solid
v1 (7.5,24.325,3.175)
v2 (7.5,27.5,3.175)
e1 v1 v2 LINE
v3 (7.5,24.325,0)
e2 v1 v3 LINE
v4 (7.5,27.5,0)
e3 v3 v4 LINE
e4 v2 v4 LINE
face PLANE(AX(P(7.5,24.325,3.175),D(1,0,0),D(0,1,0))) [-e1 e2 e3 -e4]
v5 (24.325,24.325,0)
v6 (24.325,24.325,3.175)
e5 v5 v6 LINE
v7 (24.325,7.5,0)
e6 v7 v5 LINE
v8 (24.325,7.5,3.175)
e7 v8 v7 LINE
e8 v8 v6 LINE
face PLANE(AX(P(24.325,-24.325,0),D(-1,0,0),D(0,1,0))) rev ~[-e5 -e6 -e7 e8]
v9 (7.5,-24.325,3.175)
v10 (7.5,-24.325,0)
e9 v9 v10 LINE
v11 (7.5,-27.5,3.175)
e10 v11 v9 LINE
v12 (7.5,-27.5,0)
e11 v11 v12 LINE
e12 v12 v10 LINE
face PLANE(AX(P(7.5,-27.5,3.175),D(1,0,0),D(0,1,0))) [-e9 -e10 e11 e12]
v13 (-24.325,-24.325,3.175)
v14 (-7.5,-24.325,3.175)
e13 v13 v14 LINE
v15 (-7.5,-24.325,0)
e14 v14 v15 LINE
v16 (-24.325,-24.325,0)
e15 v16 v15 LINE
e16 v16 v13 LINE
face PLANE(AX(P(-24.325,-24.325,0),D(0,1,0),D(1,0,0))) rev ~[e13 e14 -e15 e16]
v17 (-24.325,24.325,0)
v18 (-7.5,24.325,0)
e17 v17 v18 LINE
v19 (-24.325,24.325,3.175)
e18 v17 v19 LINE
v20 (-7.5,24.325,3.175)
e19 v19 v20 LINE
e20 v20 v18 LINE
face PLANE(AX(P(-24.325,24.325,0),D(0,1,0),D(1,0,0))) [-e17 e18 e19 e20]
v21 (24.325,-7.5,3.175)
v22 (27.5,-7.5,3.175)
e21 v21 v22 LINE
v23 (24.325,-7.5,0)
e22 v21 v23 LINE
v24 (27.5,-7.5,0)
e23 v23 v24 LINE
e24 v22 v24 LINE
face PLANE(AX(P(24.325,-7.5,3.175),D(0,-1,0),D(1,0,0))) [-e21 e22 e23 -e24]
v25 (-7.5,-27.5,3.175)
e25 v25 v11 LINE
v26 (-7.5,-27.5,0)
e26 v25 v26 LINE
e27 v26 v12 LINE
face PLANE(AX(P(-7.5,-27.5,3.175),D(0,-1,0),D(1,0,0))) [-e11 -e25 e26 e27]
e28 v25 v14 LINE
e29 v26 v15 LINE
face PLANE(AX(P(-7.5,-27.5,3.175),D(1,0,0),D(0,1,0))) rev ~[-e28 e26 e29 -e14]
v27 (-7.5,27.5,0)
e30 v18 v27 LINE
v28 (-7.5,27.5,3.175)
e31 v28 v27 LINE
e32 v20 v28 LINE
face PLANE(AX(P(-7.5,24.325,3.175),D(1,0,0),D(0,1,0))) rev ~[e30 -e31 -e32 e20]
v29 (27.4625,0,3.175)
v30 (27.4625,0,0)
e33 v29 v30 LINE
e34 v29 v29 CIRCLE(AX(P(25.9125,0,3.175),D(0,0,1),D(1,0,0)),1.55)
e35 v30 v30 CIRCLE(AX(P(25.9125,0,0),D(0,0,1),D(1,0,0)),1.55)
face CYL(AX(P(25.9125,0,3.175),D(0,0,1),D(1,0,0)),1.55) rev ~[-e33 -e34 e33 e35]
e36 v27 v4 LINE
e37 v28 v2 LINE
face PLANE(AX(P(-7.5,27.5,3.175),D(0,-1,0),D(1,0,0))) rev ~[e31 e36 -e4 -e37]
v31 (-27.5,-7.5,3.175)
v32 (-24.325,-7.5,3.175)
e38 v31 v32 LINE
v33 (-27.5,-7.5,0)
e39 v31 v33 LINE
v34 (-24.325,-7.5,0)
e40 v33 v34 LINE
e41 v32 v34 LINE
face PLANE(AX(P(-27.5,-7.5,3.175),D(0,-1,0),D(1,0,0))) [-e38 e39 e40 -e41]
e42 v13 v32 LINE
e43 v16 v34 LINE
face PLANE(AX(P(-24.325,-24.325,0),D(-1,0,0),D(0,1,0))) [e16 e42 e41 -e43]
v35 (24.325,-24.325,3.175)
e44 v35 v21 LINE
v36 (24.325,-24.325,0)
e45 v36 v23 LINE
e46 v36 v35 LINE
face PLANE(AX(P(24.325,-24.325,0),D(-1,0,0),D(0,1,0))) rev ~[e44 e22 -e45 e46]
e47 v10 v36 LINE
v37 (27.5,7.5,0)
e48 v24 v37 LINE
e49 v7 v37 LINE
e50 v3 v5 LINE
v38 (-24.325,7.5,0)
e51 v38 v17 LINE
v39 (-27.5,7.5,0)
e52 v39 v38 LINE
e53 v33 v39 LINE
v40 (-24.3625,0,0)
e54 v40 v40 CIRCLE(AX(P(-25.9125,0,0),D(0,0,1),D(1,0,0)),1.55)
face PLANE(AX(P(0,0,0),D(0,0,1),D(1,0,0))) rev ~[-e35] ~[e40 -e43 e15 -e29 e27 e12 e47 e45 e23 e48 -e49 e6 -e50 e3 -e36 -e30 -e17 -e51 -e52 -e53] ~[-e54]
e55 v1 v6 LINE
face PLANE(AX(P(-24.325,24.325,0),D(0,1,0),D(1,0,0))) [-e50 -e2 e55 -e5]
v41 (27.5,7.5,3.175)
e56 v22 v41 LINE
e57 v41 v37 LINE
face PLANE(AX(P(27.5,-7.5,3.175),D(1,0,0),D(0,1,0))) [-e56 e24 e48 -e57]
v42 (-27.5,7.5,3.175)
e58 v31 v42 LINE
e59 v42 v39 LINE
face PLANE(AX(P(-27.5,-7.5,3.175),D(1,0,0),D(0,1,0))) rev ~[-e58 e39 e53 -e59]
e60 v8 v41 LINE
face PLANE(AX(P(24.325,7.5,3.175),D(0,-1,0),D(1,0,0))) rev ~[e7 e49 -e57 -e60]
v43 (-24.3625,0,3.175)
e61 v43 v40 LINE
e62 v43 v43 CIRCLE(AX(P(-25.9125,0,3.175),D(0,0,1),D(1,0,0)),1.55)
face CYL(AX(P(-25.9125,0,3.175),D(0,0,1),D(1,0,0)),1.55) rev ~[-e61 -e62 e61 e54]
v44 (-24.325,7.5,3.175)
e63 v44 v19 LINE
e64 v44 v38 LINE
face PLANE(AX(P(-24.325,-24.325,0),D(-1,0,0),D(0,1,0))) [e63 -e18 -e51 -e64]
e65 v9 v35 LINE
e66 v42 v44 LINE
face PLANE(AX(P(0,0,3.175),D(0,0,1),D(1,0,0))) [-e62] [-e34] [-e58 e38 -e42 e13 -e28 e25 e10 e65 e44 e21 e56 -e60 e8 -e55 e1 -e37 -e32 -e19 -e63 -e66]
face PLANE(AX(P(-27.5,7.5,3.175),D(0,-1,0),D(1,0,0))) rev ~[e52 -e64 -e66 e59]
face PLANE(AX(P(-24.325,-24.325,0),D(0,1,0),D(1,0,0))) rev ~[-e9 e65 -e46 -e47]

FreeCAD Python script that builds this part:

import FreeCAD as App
import Part
import Sketcher

V = App.Vector

doc = App.newDocument("Part")
body = doc.addObject("PartDesign::Body", "Body")

sketch1 = body.newObject("Sketcher::SketchObject", "Sketch")
sketch1.AttachmentSupport = (doc.getObject("XY_Plane"), [""])
sketch1.MapMode = "FlatFace"
sketch1.addGeometry(Part.LineSegment(V(-24, 24, 0), V(-24, -24, 0)), False)
sketch1.addGeometry(Part.LineSegment(V(-24, -24, 0), V(24, -24, 0)), False)
sketch1.addGeometry(Part.LineSegment(V(24, -24, 0), V(24, 24, 0)), False)
sketch1.addGeometry(Part.LineSegment(V(24, 24, 0), V(-24, 24, 0)), False)
sketch1.addConstraint(Sketcher.Constraint("Coincident", 0, 2, 1, 1))
sketch1.addConstraint(Sketcher.Constraint("Coincident", 1, 2, 2, 1))
sketch1.addConstraint(Sketcher.Constraint("Coincident", 2, 2, 3, 1))
sketch1.addConstraint(Sketcher.Constraint("Coincident", 3, 2, 0, 1))
sketch1.addConstraint(Sketcher.Constraint("Vertical", 0))
sketch1.addConstraint(Sketcher.Constraint("Horizontal", 1))
sketch1.addConstraint(Sketcher.Constraint("Vertical", 2))
sketch1.addConstraint(Sketcher.Constraint("Horizontal", 3))
sketch1.addConstraint(Sketcher.Constraint("Symmetric", 0, 2, 2, 2, -1, 1))
sketch1.addConstraint(Sketcher.Constraint("Equal", 3, 0))
sketch1.addConstraint(Sketcher.Constraint("DistanceX", 1, 1, 1, 2, 48.65))
pad1 = body.newObject("PartDesign::Pad", "Pad")
pad1.Profile = sketch1
pad1.Length = 3.175

sketch2 = body.newObject("Sketcher::SketchObject", "Sketch001")
sketch2.AttachmentSupport = (doc.getObject("XY_Plane"), [""])
sketch2.MapMode = "FlatFace"
sketch2.AttachmentOffset = App.Placement(V(0, 0, 3.175), App.Rotation())
sketch2.addGeometry(Part.LineSegment(V(-27.5, 7.5, 0), V(-27.5, -7.5, 0)), False)
sketch2.addGeometry(Part.LineSegment(V(-27.5, -7.5, 0), V(-24.3, -7.5, 0)), False)
sketch2.addGeometry(Part.LineSegment(V(-24.3, -7.5, 0), V(-24.3, 7.5, 0)), False)
sketch2.addGeometry(Part.LineSegment(V(-24.3, 7.5, 0), V(-27.5, 7.5, 0)), False)
sketch2.addGeometry(Part.LineSegment(V(-7.5, 27.5, 0), V(-7.5, 24.3, 0)), False)
sketch2.addGeometry(Part.LineSegment(V(-7.5, 24.3, 0), V(7.5, 24.3, 0)), False)
sketch2.addGeometry(Part.LineSegment(V(7.5, 24.3, 0), V(7.5, 27.5, 0)), False)
sketch2.addGeometry(Part.LineSegment(V(7.5, 27.5, 0), V(-7.5, 27.5, 0)), False)
sketch2.addGeometry(Part.LineSegment(V(-7.5, -24.3, 0), V(-7.5, -27.5, 0)), False)
sketch2.addGeometry(Part.LineSegment(V(-7.5, -27.5, 0), V(7.5, -27.5, 0)), False)
sketch2.addGeometry(Part.LineSegment(V(7.5, -27.5, 0), V(7.5, -24.3, 0)), False)
sketch2.addGeometry(Part.LineSegment(V(7.5, -24.3, 0), V(-7.5, -24.3, 0)), False)
sketch2.addGeometry(Part.LineSegment(V(24.3, 7.5, 0), V(24.3, -7.5, 0)), False)
sketch2.addGeometry(Part.LineSegment(V(24.3, -7.5, 0), V(27.5, -7.5, 0)), False)
sketch2.addGeometry(Part.LineSegment(V(27.5, -7.5, 0), V(27.5, 7.5, 0)), False)
sketch2.addGeometry(Part.LineSegment(V(27.5, 7.5, 0), V(24.3, 7.5, 0)), False)
sketch2.addConstraint(Sketcher.Constraint("Coincident", 0, 2, 1, 1))
sketch2.addConstraint(Sketcher.Constraint("Coincident", 1, 2, 2, 1))
sketch2.addConstraint(Sketcher.Constraint("Coincident", 2, 2, 3, 1))
sketch2.addConstraint(Sketcher.Constraint("Coincident", 3, 2, 0, 1))
sketch2.addConstraint(Sketcher.Constraint("Coincident", 4, 2, 5, 1))
sketch2.addConstraint(Sketcher.Constraint("Coincident", 5, 2, 6, 1))
sketch2.addConstraint(Sketcher.Constraint("Coincident", 6, 2, 7, 1))
sketch2.addConstraint(Sketcher.Constraint("Coincident", 7, 2, 4, 1))
sketch2.addConstraint(Sketcher.Constraint("Coincident", 8, 2, 9, 1))
sketch2.addConstraint(Sketcher.Constraint("Coincident", 9, 2, 10, 1))
sketch2.addConstraint(Sketcher.Constraint("Coincident", 10, 2, 11, 1))
sketch2.addConstraint(Sketcher.Constraint("Coincident", 11, 2, 8, 1))
sketch2.addConstraint(Sketcher.Constraint("Coincident", 12, 2, 13, 1))
sketch2.addConstraint(Sketcher.Constraint("Coincident", 13, 2, 14, 1))
sketch2.addConstraint(Sketcher.Constraint("Coincident", 14, 2, 15, 1))
sketch2.addConstraint(Sketcher.Constraint("Coincident", 15, 2, 12, 1))
sketch2.addConstraint(Sketcher.Constraint("Vertical", 0))
sketch2.addConstraint(Sketcher.Constraint("Horizontal", 1))
sketch2.addConstraint(Sketcher.Constraint("Vertical", 2))
sketch2.addConstraint(Sketcher.Constraint("Horizontal", 3))
sketch2.addConstraint(Sketcher.Constraint("Vertical", 4))
sketch2.addConstraint(Sketcher.Constraint("Horizontal", 5))
sketch2.addConstraint(Sketcher.Constraint("Vertical", 6))
sketch2.addConstraint(Sketcher.Constraint("Horizontal", 7))
sketch2.addConstraint(Sketcher.Constraint("Vertical", 8))
sketch2.addConstraint(Sketcher.Constraint("Horizontal", 9))
sketch2.addConstraint(Sketcher.Constraint("Vertical", 10))
sketch2.addConstraint(Sketcher.Constraint("Horizontal", 11))
sketch2.addConstraint(Sketcher.Constraint("Vertical", 12))
sketch2.addConstraint(Sketcher.Constraint("Horizontal", 13))
sketch2.addConstraint(Sketcher.Constraint("Vertical", 14))
sketch2.addConstraint(Sketcher.Constraint("Horizontal", 15))
sketch2.addConstraint(Sketcher.Constraint("Symmetric", 6, 2, 8, 2, -1, 1))
sketch2.addConstraint(Sketcher.Constraint("Symmetric", 4, 2, 10, 2, -1, 1))
sketch2.addConstraint(Sketcher.Constraint("Symmetric", 2, 2, 12, 2, -1, 1))
sketch2.addConstraint(Sketcher.Constraint("Symmetric", 0, 2, 14, 2, -1, 1))
sketch2.addConstraint(Sketcher.Constraint("Horizontal", 1, 2, 12, 2))
sketch2.addConstraint(Sketcher.Constraint("Vertical", 7, 2, 8, 2))
sketch2.addConstraint(Sketcher.Constraint("Equal", 11, 0))
sketch2.addConstraint(Sketcher.Constraint("Equal", 15, 4))
sketch2.addConstraint(Sketcher.Constraint("DistanceX", 5, 1, 5, 2, 15.0))
sketch2.addConstraint(Sketcher.Constraint("DistanceX", 3, 2, 4, 2, 20.0))
sketch2.addConstraint(Sketcher.Constraint("DistanceY", 2, 2, 6, 2, 20.0))
sketch2.addConstraint(Sketcher.Constraint("DistanceX", 1, 1, 1, 2, 3.175))
pad2 = body.newObject("PartDesign::Pad", "Pad001")
pad2.Profile = sketch2
pad2.Type = "UpToLast"
pad2.Reversed = True

sketch3 = body.newObject("Sketcher::SketchObject", "Sketch002")
sketch3.AttachmentSupport = (doc.getObject("XY_Plane"), [""])
sketch3.MapMode = "FlatFace"
sketch3.AttachmentOffset = App.Placement(V(0, 0, 3.175), App.Rotation())
sketch3.addGeometry(Part.Circle(V(-25.9, 0, 0), V(0, 0, 1), 1.6), False)
sketch3.addGeometry(Part.Circle(V(25.9, 0, 0), V(0, 0, 1), 1.6), False)
sketch3.addConstraint(Sketcher.Constraint("Equal", 0, 1))
sketch3.addConstraint(Sketcher.Constraint("Symmetric", 0, 3, 1, 3, -1, 1))
sketch3.addConstraint(Sketcher.Constraint("PointOnObject", 0, 3, -1))
sketch3.addConstraint(Sketcher.Constraint("Diameter", 0, 3.1))
sketch3.addConstraint(Sketcher.Constraint("DistanceX", 0, 3, 1, 3, 51.825))
pocket1 = body.newObject("PartDesign::Pocket", "Pocket")
pocket1.Profile = sketch3
pocket1.Type = "ThroughAll"

doc.recompute()
